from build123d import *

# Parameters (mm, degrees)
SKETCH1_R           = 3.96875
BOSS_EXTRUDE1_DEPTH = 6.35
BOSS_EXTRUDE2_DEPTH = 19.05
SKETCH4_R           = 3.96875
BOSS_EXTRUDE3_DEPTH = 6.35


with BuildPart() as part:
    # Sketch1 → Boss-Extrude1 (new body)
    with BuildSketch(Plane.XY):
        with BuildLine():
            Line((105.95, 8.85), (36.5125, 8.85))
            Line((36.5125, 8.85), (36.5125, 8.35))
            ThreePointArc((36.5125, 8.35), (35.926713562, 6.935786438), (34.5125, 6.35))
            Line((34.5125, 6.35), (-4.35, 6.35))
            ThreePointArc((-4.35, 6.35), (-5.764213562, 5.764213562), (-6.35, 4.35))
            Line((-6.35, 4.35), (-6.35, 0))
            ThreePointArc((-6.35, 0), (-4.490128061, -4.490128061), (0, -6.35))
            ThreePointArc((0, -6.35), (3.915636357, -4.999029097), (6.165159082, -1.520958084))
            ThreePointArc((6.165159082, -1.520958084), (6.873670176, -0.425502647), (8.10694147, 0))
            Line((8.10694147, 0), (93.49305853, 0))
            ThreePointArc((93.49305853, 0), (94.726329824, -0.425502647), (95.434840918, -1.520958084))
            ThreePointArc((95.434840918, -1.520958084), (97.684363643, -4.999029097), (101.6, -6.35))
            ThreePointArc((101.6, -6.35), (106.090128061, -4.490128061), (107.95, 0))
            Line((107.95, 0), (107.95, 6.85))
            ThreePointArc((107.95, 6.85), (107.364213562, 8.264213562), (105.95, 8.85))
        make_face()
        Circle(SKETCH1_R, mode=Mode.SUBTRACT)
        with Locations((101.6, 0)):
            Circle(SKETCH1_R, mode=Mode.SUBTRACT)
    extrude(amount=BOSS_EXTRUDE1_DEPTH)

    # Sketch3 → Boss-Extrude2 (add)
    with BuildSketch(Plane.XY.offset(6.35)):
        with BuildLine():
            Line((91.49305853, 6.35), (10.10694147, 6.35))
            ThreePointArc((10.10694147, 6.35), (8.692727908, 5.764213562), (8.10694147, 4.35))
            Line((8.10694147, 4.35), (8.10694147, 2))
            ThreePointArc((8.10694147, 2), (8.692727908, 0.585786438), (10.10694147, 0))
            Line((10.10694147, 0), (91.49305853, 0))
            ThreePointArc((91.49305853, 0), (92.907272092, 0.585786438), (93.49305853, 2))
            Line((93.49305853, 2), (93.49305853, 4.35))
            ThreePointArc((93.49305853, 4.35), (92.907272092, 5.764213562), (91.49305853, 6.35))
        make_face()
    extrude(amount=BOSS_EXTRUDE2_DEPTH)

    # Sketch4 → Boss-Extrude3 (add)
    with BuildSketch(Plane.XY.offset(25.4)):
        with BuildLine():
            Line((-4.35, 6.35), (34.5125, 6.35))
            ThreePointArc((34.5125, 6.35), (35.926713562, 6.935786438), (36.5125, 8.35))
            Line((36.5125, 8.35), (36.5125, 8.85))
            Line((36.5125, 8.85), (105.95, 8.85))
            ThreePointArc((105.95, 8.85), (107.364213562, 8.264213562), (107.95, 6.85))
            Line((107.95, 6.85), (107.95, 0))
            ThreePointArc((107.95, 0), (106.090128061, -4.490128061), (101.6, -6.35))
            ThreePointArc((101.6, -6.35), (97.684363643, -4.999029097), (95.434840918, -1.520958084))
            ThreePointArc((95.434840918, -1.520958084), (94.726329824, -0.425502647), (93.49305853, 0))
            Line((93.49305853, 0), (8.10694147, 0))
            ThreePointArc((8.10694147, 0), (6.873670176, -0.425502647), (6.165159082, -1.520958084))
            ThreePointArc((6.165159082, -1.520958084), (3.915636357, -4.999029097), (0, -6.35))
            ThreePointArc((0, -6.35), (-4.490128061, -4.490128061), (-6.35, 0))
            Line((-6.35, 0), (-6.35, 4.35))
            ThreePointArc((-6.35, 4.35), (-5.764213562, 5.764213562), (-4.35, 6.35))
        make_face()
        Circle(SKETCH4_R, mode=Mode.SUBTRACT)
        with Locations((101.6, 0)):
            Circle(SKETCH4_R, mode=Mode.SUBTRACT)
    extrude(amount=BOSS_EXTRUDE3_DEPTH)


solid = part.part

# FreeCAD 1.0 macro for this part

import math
import FreeCAD as App
import Part
import Sketcher
from FreeCAD import Vector
Q = App.Units.Quantity

doc = App.newDocument("Part")
body = doc.addObject("PartDesign::Body", "Body")

# Sketch on XY plane
sketch1 = doc.addObject("Sketcher::SketchObject", "Sketch")
body.addObject(sketch1)
sketch1.AttachmentSupport = (doc.XY_Plane, [""])
sketch1.MapMode = "FlatFace"
sketch1.addGeometry([
    Part.LineSegment(Vector(106, 8.8, 0), Vector(36.5, 8.8, 0)),  # 0
    Part.LineSegment(Vector(36.5, 8.8, 0), Vector(36.5, 8.3, 0)),  # 1
    Part.ArcOfCircle(Part.Circle(Vector(34.5, 8.4, 0), Vector(0, 0, 1), 2), math.radians(-90), math.radians(0)),  # 2
    Part.LineSegment(Vector(34.5, 6.3, 0), Vector(-4.3, 6.3, 0)),  # 3
    Part.ArcOfCircle(Part.Circle(Vector(-4.3, 4.3, 0), Vector(0, 0, 1), 2), math.radians(90), math.radians(180)),  # 4
    Part.LineSegment(Vector(-6.3, 4.3, 0), Vector(-6.3, 0, 0)),  # 5
    Part.ArcOfCircle(Part.Circle(Vector(0, 0, 0), Vector(0, 0, 1), 6.3), math.radians(180), math.radians(346)),  # 6
    Part.ArcOfCircle(Part.Circle(Vector(8.1, -2, 0), Vector(0, 0, 1), 2), math.radians(90), math.radians(166)),  # 7
    Part.LineSegment(Vector(8.1, 0, 0), Vector(93.5, 0, 0)),  # 8
    Part.ArcOfCircle(Part.Circle(Vector(93.5, -2, 0), Vector(0, 0, 1), 2), math.radians(14), math.radians(90)),  # 9
    Part.ArcOfCircle(Part.Circle(Vector(101.6, 0, 0), Vector(0, 0, 1), 6.4), math.radians(-166), math.radians(0)),  # 10
    Part.LineSegment(Vector(108, 0, 0), Vector(108, 6.8, 0)),  # 11
    Part.ArcOfCircle(Part.Circle(Vector(105.9, 6.8, 0), Vector(0, 0, 1), 2), math.radians(0), math.radians(90)),  # 12
    Part.Circle(Vector(0, 0, 0), Vector(0, 0, 1), 4),  # 13
    Part.Circle(Vector(101.6, 0, 0), Vector(0, 0, 1), 4),  # 14
], False)
sketch1.addConstraint([
    Sketcher.Constraint("Coincident", 0, 2, 1, 1),
    Sketcher.Constraint("Tangent", 1, 2, 2, 2),
    Sketcher.Constraint("Tangent", 2, 1, 3, 1),
    Sketcher.Constraint("Tangent", 3, 2, 4, 1),
    Sketcher.Constraint("Tangent", 4, 2, 5, 1),
    Sketcher.Constraint("Tangent", 5, 2, 6, 1),
    Sketcher.Constraint("Tangent", 6, 2, 7, 2),
    Sketcher.Constraint("Tangent", 7, 1, 8, 1),
    Sketcher.Constraint("Tangent", 8, 2, 9, 2),
    Sketcher.Constraint("Tangent", 9, 1, 10, 1),
    Sketcher.Constraint("Tangent", 10, 2, 11, 1),
    Sketcher.Constraint("Tangent", 11, 2, 12, 1),
    Sketcher.Constraint("Tangent", 12, 2, 0, 1),
    Sketcher.Constraint("Horizontal", 0),
    Sketcher.Constraint("Vertical", 1),
    Sketcher.Constraint("Horizontal", 3),
    Sketcher.Constraint("Vertical", 5),
    Sketcher.Constraint("Horizontal", 8),
    Sketcher.Constraint("Vertical", 11),
    Sketcher.Constraint("Coincident", 6, 3, -1, 1),
    Sketcher.Constraint("Coincident", 13, 3, -1, 1),
    Sketcher.Constraint("Coincident", 14, 3, 10, 3),
    Sketcher.Constraint("Equal", 2, 4),
    Sketcher.Constraint("Equal", 4, 7),
    Sketcher.Constraint("Equal", 7, 9),
    Sketcher.Constraint("Equal", 6, 10),
    Sketcher.Constraint("Equal", 9, 12),
    Sketcher.Constraint("Equal", 13, 14),
    Sketcher.Constraint("PointOnObject", 10, 3, -1),
    Sketcher.Constraint("PointOnObject", 7, 1, -1),
    Sketcher.Constraint("Radius", 6, Q("0.25 in")),
    Sketcher.Constraint("Diameter", 13, Q("0.3125 in")),
    Sketcher.Constraint("DistanceX", -1, 1, 10, 3, Q("4 in")),
    Sketcher.Constraint("DistanceY", -1, 1, 2, 1, Q("0.25 in")),
    Sketcher.Constraint("Radius", 2, Q("2 mm")),
    Sketcher.Constraint("DistanceX", -1, 1, 0, 2, Q("1.4375 in")),
    Sketcher.Constraint("DistanceY", 1, 2, 1, 1, Q("0.5 mm")),
])
pad1 = doc.addObject("PartDesign::Pad", "Pad")
body.addObject(pad1)
pad1.Profile = sketch1
pad1.Length = Q("0.25 in")

# Sketch on XY plane
sketch2 = doc.addObject("Sketcher::SketchObject", "Sketch001")
body.addObject(sketch2)
sketch2.AttachmentSupport = (doc.XY_Plane, [""])
sketch2.MapMode = "FlatFace"
sketch2.AttachmentOffset = App.Placement(Vector(0, 0, 0.25 * 25.4), App.Rotation())
sketch2.addGeometry([
    Part.LineSegment(Vector(91.5, 6.3, 0), Vector(10.1, 6.3, 0)),  # 0
    Part.ArcOfCircle(Part.Circle(Vector(10.1, 4.3, 0), Vector(0, 0, 1), 2), math.radians(90), math.radians(180)),  # 1
    Part.LineSegment(Vector(8.1, 4.3, 0), Vector(8.1, 2, 0)),  # 2
    Part.ArcOfCircle(Part.Circle(Vector(10.1, 2, 0), Vector(0, 0, 1), 2), math.radians(-180), math.radians(-90)),  # 3
    Part.LineSegment(Vector(10.1, 0, 0), Vector(91.5, 0, 0)),  # 4
    Part.ArcOfCircle(Part.Circle(Vector(91.5, 2, 0), Vector(0, 0, 1), 2), math.radians(-90), math.radians(0)),  # 5
    Part.LineSegment(Vector(93.5, 2, 0), Vector(93.5, 4.3, 0)),  # 6
    Part.ArcOfCircle(Part.Circle(Vector(91.5, 4.3, 0), Vector(0, 0, 1), 2), math.radians(0), math.radians(90)),  # 7
], False)
sketch2.addConstraint([
    Sketcher.Constraint("Tangent", 0, 2, 1, 1),
    Sketcher.Constraint("Tangent", 1, 2, 2, 1),
    Sketcher.Constraint("Tangent", 2, 2, 3, 1),
    Sketcher.Constraint("Tangent", 3, 2, 4, 1),
    Sketcher.Constraint("Tangent", 4, 2, 5, 1),
    Sketcher.Constraint("Tangent", 5, 2, 6, 1),
    Sketcher.Constraint("Tangent", 6, 2, 7, 1),
    Sketcher.Constraint("Tangent", 7, 2, 0, 1),
    Sketcher.Constraint("Horizontal", 0),
    Sketcher.Constraint("Vertical", 2),
    Sketcher.Constraint("Horizontal", 4),
    Sketcher.Constraint("Vertical", 6),
    Sketcher.Constraint("Equal", 1, 3),
    Sketcher.Constraint("Equal", 3, 5),
    Sketcher.Constraint("Equal", 5, 7),
    Sketcher.Constraint("PointOnObject", 3, 2, -1),
    Sketcher.Constraint("DistanceY", -1, 1, 0, 2, Q("0.25 in")),
    Sketcher.Constraint("Radius", 1, Q("2 mm")),
    Sketcher.Constraint("DistanceX", 0, 2, 0, 1, Q("81.386117 mm")),
    Sketcher.Constraint("DistanceX", -1, 1, 1, 3, Q("10.106941 mm")),
])
pad2 = doc.addObject("PartDesign::Pad", "Pad001")
body.addObject(pad2)
pad2.Profile = sketch2
pad2.Length = Q("0.75 in")

# Sketch on XY plane
sketch3 = doc.addObject("Sketcher::SketchObject", "Sketch002")
body.addObject(sketch3)
sketch3.AttachmentSupport = (doc.XY_Plane, [""])
sketch3.MapMode = "FlatFace"
sketch3.AttachmentOffset = App.Placement(Vector(0, 0, 1 * 25.4), App.Rotation())
sketch3.addGeometry([
    Part.LineSegment(Vector(34.5, 6.3, 0), Vector(-4.3, 6.3, 0)),  # 0
    Part.ArcOfCircle(Part.Circle(Vector(-4.3, 4.3, 0), Vector(0, 0, 1), 2), math.radians(90), math.radians(180)),  # 1
    Part.LineSegment(Vector(-6.3, 4.3, 0), Vector(-6.3, 0, 0)),  # 2
    Part.ArcOfCircle(Part.Circle(Vector(0, 0, 0), Vector(0, 0, 1), 6.4), math.radians(-180), math.radians(-14)),  # 3
    Part.ArcOfCircle(Part.Circle(Vector(8.1, -2, 0), Vector(0, 0, 1), 2), math.radians(90), math.radians(166)),  # 4
    Part.LineSegment(Vector(8.1, 0, 0), Vector(93.5, 0, 0)),  # 5
    Part.ArcOfCircle(Part.Circle(Vector(93.5, -2, 0), Vector(0, 0, 1), 2), math.radians(14), math.radians(90)),  # 6
    Part.ArcOfCircle(Part.Circle(Vector(101.6, 0, 0), Vector(0, 0, 1), 6.3), math.radians(-166), math.radians(0)),  # 7
    Part.LineSegment(Vector(108, 0, 0), Vector(108, 6.8, 0)),  # 8
    Part.ArcOfCircle(Part.Circle(Vector(105.9, 6.8, 0), Vector(0, 0, 1), 2), math.radians(0), math.radians(90)),  # 9
    Part.LineSegment(Vector(106, 8.8, 0), Vector(36.5, 8.8, 0)),  # 10
    Part.LineSegment(Vector(36.5, 8.8, 0), Vector(36.5, 8.3, 0)),  # 11
    Part.ArcOfCircle(Part.Circle(Vector(34.5, 8.4, 0), Vector(0, 0, 1), 2), math.radians(-90), math.radians(0)),  # 12
    Part.Circle(Vector(101.6, 0, 0), Vector(0, 0, 1), 4),  # 13
    Part.Circle(Vector(0, 0, 0), Vector(0, 0, 1), 4),  # 14
], False)
sketch3.addConstraint([
    Sketcher.Constraint("Tangent", 0, 2, 1, 1),
    Sketcher.Constraint("Tangent", 1, 2, 2, 1),
    Sketcher.Constraint("Tangent", 2, 2, 3, 1),
    Sketcher.Constraint("Tangent", 3, 2, 4, 2),
    Sketcher.Constraint("Tangent", 4, 1, 5, 1),
    Sketcher.Constraint("Tangent", 5, 2, 6, 2),
    Sketcher.Constraint("Tangent", 6, 1, 7, 1),
    Sketcher.Constraint("Tangent", 7, 2, 8, 1),
    Sketcher.Constraint("Tangent", 8, 2, 9, 1),
    Sketcher.Constraint("Tangent", 9, 2, 10, 1),
    Sketcher.Constraint("Coincident", 10, 2, 11, 1),
    Sketcher.Constraint("Tangent", 11, 2, 12, 2),
    Sketcher.Constraint("Tangent", 12, 1, 0, 1),
    Sketcher.Constraint("Horizontal", 0),
    Sketcher.Constraint("Vertical", 2),
    Sketcher.Constraint("Horizontal", 5),
    Sketcher.Constraint("Vertical", 8),
    Sketcher.Constraint("Horizontal", 10),
    Sketcher.Constraint("Vertical", 11),
    Sketcher.Constraint("Coincident", 3, 3, -1, 1),
    Sketcher.Constraint("Coincident", 14, 3, -1, 1),
    Sketcher.Constraint("Coincident", 13, 3, 7, 3),
    Sketcher.Constraint("Equal", 1, 4),
    Sketcher.Constraint("Equal", 4, 6),
    Sketcher.Constraint("Equal", 3, 7),
    Sketcher.Constraint("Equal", 6, 9),
    Sketcher.Constraint("Equal", 9, 12),
    Sketcher.Constraint("Equal", 13, 14),
    Sketcher.Constraint("PointOnObject", 7, 3, -1),
    Sketcher.Constraint("PointOnObject", 4, 1, -1),
    Sketcher.Constraint("Radius", 3, Q("0.25 in")),
    Sketcher.Constraint("Diameter", 13, Q("0.3125 in")),
    Sketcher.Constraint("DistanceX", -1, 1, 7, 3, Q("4 in")),
    Sketcher.Constraint("DistanceY", -1, 1, 0, 2, Q("0.25 in")),
    Sketcher.Constraint("Radius", 1, Q("2 mm")),
    Sketcher.Constraint("DistanceX", -1, 1, 10, 2, Q("1.4375 in")),
    Sketcher.Constraint("DistanceY", 8, 1, 8, 2, Q("6.85 mm")),
])
pad3 = doc.addObject("PartDesign::Pad", "Pad002")
body.addObject(pad3)
pad3.Profile = sketch3
pad3.Length = Q("0.25 in")

doc.recompute()
